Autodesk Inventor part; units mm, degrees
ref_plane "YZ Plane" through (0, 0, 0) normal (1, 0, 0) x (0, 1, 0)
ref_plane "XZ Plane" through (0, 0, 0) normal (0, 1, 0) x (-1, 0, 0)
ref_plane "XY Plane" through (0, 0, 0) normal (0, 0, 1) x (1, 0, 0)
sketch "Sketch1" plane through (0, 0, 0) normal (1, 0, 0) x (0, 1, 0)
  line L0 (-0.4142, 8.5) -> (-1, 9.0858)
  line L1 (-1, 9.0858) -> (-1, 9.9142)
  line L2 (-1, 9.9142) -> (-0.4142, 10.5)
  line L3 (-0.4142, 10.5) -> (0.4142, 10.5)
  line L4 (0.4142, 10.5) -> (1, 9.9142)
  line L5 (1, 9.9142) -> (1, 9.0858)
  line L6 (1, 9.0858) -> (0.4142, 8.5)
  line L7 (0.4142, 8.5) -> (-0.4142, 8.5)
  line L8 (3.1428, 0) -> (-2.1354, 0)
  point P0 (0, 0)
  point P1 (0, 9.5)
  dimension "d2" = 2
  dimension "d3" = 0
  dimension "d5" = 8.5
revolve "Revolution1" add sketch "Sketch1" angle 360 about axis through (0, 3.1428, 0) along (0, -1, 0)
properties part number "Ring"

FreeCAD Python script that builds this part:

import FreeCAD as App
import Part
import Sketcher
from FreeCAD import Vector
Q = App.Units.Quantity


def add_polygon(sketch, points):
    """Adds a closed chain of lines whose ends are joined by coincident constraints."""
    first, n = sketch.GeometryCount, len(points)
    for a, b in zip(points, points[1:] + points[:1]):
        sketch.addGeometry(Part.LineSegment(App.Vector(*a, 0), App.Vector(*b, 0)), False)
    for i in range(n):
        sketch.addConstraint(Sketcher.Constraint("Coincident", first + i, 2, first + (i + 1) % n, 1))

doc = App.newDocument("Part")
body = doc.addObject("PartDesign::Body", "Body")

# Sketch on YZ plane
sketch1 = doc.addObject("Sketcher::SketchObject", "Sketch")
body.addObject(sketch1)
sketch1.AttachmentSupport = (doc.YZ_Plane, [""])
sketch1.MapMode = "FlatFace"
add_polygon(sketch1, [(-1, 9.0858), (-0.4142, 8.5), (0.4142, 8.5), (1, 9.0858), (1, 9.9142), (0.4142, 10.5), (-0.4142, 10.5), (-1, 9.9142)])  # lines 0-7
sketch1.addConstraint([
    Sketcher.Constraint("Horizontal", 1),
    Sketcher.Constraint("Vertical", 3),
    Sketcher.Constraint("Horizontal", 5),
    Sketcher.Constraint("Vertical", 7),
    Sketcher.Constraint("Symmetric", 3, 2, 6, 2, -2),
    Sketcher.Constraint("Perpendicular", 0, 2),
    Sketcher.Constraint("Perpendicular", 2, 4),
    Sketcher.Constraint("Perpendicular", 4, 6),
    Sketcher.Constraint("Horizontal", 2, 2, 7, 2),
    Sketcher.Constraint("Vertical", 1, 2, 4, 2),
    Sketcher.Constraint("Vertical", 0, 2, 5, 2),
    Sketcher.Constraint("Equal", 5, 3),
    Sketcher.Constraint("DistanceY", 1, 2, 4, 2, Q("2 mm")),
    Sketcher.Constraint("DistanceY", -1, 1, 0, 2, Q("8.5 mm")),
    Sketcher.Constraint("DistanceX", 1, 1, 1, 2, Q("0.8284 mm")),
])
revolution = doc.addObject("PartDesign::Revolution", "Revolution")
body.addObject(revolution)
revolution.Profile = sketch1
revolution.ReferenceAxis = (sketch1, ["H_Axis"])
revolution.Angle = 360

doc.recompute()
